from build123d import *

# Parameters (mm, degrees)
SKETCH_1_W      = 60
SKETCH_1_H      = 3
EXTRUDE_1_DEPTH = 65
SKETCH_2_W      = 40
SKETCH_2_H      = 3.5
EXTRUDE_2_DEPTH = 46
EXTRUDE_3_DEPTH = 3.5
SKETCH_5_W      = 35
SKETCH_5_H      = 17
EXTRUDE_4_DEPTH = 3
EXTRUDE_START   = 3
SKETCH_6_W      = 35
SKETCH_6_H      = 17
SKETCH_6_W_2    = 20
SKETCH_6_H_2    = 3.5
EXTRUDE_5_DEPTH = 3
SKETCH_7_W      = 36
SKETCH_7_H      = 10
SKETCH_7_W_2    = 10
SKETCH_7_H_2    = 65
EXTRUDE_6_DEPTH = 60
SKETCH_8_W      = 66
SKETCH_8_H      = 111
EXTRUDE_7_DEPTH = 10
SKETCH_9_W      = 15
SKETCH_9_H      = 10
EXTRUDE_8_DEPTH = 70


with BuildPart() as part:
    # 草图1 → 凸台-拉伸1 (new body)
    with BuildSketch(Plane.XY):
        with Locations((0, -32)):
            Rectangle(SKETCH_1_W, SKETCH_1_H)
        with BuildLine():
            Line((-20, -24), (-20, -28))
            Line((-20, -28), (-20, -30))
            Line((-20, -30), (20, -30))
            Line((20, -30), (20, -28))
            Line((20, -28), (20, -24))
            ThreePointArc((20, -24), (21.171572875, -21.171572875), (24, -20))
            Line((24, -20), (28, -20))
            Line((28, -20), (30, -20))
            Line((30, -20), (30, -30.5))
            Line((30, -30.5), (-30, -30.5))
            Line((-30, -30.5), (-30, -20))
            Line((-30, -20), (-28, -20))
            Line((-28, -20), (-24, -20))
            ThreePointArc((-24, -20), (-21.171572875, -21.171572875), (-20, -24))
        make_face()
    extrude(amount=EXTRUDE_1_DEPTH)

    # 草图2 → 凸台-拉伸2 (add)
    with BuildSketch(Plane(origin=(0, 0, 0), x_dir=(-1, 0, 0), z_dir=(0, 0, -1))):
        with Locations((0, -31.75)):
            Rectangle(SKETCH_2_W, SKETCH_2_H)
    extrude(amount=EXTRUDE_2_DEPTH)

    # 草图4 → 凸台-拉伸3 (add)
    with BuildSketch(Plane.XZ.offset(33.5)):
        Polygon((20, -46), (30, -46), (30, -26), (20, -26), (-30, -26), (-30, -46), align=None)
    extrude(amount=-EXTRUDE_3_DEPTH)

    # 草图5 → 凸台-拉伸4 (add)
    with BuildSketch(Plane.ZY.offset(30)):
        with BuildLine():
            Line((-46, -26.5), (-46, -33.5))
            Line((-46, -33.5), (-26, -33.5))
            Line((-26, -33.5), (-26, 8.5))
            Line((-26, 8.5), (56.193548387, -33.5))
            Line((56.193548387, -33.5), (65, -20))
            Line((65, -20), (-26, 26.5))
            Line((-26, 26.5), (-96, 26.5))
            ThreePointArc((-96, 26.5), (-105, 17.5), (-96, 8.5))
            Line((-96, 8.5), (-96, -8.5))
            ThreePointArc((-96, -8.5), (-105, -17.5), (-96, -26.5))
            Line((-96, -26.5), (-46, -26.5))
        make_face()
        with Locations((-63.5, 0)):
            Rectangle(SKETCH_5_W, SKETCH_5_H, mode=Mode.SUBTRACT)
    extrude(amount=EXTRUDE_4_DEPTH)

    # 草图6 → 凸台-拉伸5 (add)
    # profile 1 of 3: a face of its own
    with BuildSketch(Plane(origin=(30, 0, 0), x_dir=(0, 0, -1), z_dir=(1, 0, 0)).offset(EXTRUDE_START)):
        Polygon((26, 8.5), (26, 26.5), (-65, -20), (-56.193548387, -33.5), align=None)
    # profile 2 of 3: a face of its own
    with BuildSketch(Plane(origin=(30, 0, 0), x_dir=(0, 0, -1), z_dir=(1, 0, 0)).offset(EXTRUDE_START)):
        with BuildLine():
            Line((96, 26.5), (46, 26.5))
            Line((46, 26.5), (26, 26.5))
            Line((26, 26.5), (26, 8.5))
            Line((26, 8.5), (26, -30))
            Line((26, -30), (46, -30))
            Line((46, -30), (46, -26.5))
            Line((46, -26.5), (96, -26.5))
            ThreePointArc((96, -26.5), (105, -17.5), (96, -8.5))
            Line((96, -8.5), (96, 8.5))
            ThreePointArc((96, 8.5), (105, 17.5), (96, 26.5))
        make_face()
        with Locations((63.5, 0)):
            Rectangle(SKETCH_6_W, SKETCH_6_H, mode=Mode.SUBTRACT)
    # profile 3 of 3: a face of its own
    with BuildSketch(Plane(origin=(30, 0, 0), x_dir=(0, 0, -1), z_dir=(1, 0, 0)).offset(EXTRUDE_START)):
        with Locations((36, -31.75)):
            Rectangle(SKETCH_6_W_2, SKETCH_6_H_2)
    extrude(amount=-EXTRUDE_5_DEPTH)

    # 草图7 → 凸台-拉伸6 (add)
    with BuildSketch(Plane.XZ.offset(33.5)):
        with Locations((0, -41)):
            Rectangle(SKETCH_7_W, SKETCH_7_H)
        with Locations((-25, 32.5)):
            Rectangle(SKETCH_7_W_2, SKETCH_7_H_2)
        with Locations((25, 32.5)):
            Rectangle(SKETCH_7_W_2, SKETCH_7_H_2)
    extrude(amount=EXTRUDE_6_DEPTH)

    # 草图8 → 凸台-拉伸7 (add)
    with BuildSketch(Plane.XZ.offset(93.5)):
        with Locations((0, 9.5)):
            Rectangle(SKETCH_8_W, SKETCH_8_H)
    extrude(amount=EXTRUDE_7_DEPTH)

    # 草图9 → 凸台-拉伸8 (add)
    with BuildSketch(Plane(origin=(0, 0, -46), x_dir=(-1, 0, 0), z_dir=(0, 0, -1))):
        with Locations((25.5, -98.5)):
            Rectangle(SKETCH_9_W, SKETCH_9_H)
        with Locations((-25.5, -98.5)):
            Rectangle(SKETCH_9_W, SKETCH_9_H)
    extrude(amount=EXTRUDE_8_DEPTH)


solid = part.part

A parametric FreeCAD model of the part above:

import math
import FreeCAD as App
import Part
import Sketcher
from FreeCAD import Vector


def add_polygon(sketch, points):
    """Adds a closed chain of lines whose ends are joined by coincident constraints."""
    first, n = sketch.GeometryCount, len(points)
    for a, b in zip(points, points[1:] + points[:1]):
        sketch.addGeometry(Part.LineSegment(App.Vector(*a, 0), App.Vector(*b, 0)), False)
    for i in range(n):
        sketch.addConstraint(Sketcher.Constraint("Coincident", first + i, 2, first + (i + 1) % n, 1))

doc = App.newDocument("Part")
body = doc.addObject("PartDesign::Body", "Body")

# Sketch on XY plane
sketch1 = body.newObject("Sketcher::SketchObject", "Sketch")
sketch1.AttachmentSupport = (doc.getObject("XY_Plane"), [""])
sketch1.MapMode = "FlatFace"
sketch1.addGeometry([
    Part.LineSegment(Vector(-30, -33.5, 0), Vector(30, -33.5, 0)),  # 0
    Part.LineSegment(Vector(30, -33.5, 0), Vector(30, -20, 0)),  # 1
    Part.LineSegment(Vector(30, -20, 0), Vector(24, -20, 0)),  # 2
    Part.ArcOfCircle(Part.Circle(Vector(24, -24, 0), Vector(0, 0, 1), 4), math.radians(90), math.radians(180)),  # 3
    Part.LineSegment(Vector(20, -24, 0), Vector(20, -30, 0)),  # 4
    Part.LineSegment(Vector(20, -30, 0), Vector(-20, -30, 0)),  # 5
    Part.LineSegment(Vector(-20, -30, 0), Vector(-20, -24, 0)),  # 6
    Part.ArcOfCircle(Part.Circle(Vector(-24, -24, 0), Vector(0, 0, 1), 4), math.radians(0), math.radians(90)),  # 7
    Part.LineSegment(Vector(-24, -20, 0), Vector(-30, -20, 0)),  # 8
    Part.LineSegment(Vector(-30, -20, 0), Vector(-30, -33.5, 0)),  # 9
], False)
sketch1.addConstraint([
    Sketcher.Constraint("Coincident", 0, 2, 1, 1),
    Sketcher.Constraint("Coincident", 1, 2, 2, 1),
    Sketcher.Constraint("Tangent", 2, 2, 3, 1),
    Sketcher.Constraint("Tangent", 3, 2, 4, 1),
    Sketcher.Constraint("Coincident", 4, 2, 5, 1),
    Sketcher.Constraint("Coincident", 5, 2, 6, 1),
    Sketcher.Constraint("Tangent", 6, 2, 7, 1),
    Sketcher.Constraint("Tangent", 7, 2, 8, 1),
    Sketcher.Constraint("Coincident", 8, 2, 9, 1),
    Sketcher.Constraint("Coincident", 9, 2, 0, 1),
    Sketcher.Constraint("Horizontal", 0),
    Sketcher.Constraint("Vertical", 1),
    Sketcher.Constraint("Horizontal", 2),
    Sketcher.Constraint("Vertical", 4),
    Sketcher.Constraint("Horizontal", 5),
    Sketcher.Constraint("Vertical", 6),
    Sketcher.Constraint("Horizontal", 8),
    Sketcher.Constraint("Vertical", 9),
    Sketcher.Constraint("Equal", 3, 7),
    Sketcher.Constraint("Symmetric", 3, 3, 7, 3, -2),
    Sketcher.Constraint("Equal", 2, 8),
    Sketcher.Constraint("Equal", 8, 4),
    Sketcher.Constraint("Radius", 3, 4.0),
    Sketcher.Constraint("DistanceX", 0, 1, 0, 2, 60.0),
    Sketcher.Constraint("DistanceX", 2, 2, 2, 1, 6.0),
    Sketcher.Constraint("DistanceY", 1, 1, 1, 2, 13.5),
    Sketcher.Constraint("DistanceY", 3, 3, -1, 1, 24.0),
])
pad1 = body.newObject("PartDesign::Pad", "Pad")
pad1.Profile = sketch1
pad1.Length = 65

# Sketch on XY plane
sketch2 = body.newObject("Sketcher::SketchObject", "Sketch001")
sketch2.AttachmentSupport = (doc.getObject("XY_Plane"), [""])
sketch2.MapMode = "FlatFace"
add_polygon(sketch2, [(20, -30), (20, -33.5), (-20, -33.5), (-20, -30)])  # lines 0-3
sketch2.addConstraint([
    Sketcher.Constraint("Vertical", 0),
    Sketcher.Constraint("Horizontal", 1),
    Sketcher.Constraint("Vertical", 2),
    Sketcher.Constraint("Horizontal", 3),
    Sketcher.Constraint("DistanceX", 1, 2, 1, 1, 40.0),
    Sketcher.Constraint("DistanceY", 0, 2, 0, 1, 3.5),
    Sketcher.Constraint("DistanceX", -1, 1, 0, 2, 20.0),
    Sketcher.Constraint("DistanceY", 2, 2, -1, 1, 30.0),
])
pad2 = body.newObject("PartDesign::Pad", "Pad001")
pad2.Profile = sketch2
pad2.Length = 46
pad2.Reversed = True

# Sketch on XZ plane
sketch3 = body.newObject("Sketcher::SketchObject", "Sketch002")
sketch3.AttachmentSupport = (doc.getObject("XZ_Plane"), [""])
sketch3.MapMode = "FlatFace"
sketch3.AttachmentOffset = App.Placement(Vector(0, 0, 33.5), App.Rotation())
add_polygon(sketch3, [(30, -46), (30, -26), (-30, -26), (-30, -46)])  # lines 0-3
sketch3.addConstraint([
    Sketcher.Constraint("Vertical", 0),
    Sketcher.Constraint("Horizontal", 1),
    Sketcher.Constraint("Vertical", 2),
    Sketcher.Constraint("Horizontal", 3),
    Sketcher.Constraint("DistanceX", 1, 2, 1, 1, 60.0),
    Sketcher.Constraint("DistanceY", 0, 1, 0, 2, 20.0),
    Sketcher.Constraint("DistanceX", -1, 1, 0, 2, 30.0),
    Sketcher.Constraint("DistanceY", 0, 2, -1, 1, 26.0),
])
pad3 = body.newObject("PartDesign::Pad", "Pad002")
pad3.Profile = sketch3
pad3.Length = 3.5
pad3.Reversed = True

# Sketch on YZ plane
sketch4 = body.newObject("Sketcher::SketchObject", "Sketch003")
sketch4.AttachmentSupport = (doc.getObject("YZ_Plane"), [""])
sketch4.MapMode = "FlatFace"
sketch4.AttachmentOffset = App.Placement(Vector(0, 0, -30), App.Rotation())
sketch4.addGeometry(Part.LineSegment(Vector(-26, -46, 0), Vector(-34, -46, 0)), False)  # 0
sketch4.addGeometry(Part.LineSegment(Vector(-34, -46, 0), Vector(-34, -26, 0)), False)  # 1
sketch4.addGeometry(Part.LineSegment(Vector(-34, -26, 0), Vector(8, -26, 0)), False)  # 2
sketch4.addGeometry(Part.LineSegment(Vector(8, -26, 0), Vector(-34, 56, 0)), False)  # 3
sketch4.addGeometry(Part.LineSegment(Vector(-34, 56, 0), Vector(-20, 65, 0)), False)  # 4
sketch4.addGeometry(Part.LineSegment(Vector(-20, 65, 0), Vector(26, -26, 0)), False)  # 5
sketch4.addGeometry(Part.LineSegment(Vector(26, -26, 0), Vector(26, -96, 0)), False)  # 6
sketch4.addGeometry(Part.ArcOfCircle(Part.Circle(Vector(18, -96, 0), Vector(0, 0, 1), 9), math.radians(180), math.radians(360)), False)  # 7
sketch4.addGeometry(Part.LineSegment(Vector(8, -96, 0), Vector(-8, -96, 0)), False)  # 8
sketch4.addGeometry(Part.ArcOfCircle(Part.Circle(Vector(-18, -96, 0), Vector(0, 0, 1), 9), math.radians(180), math.radians(360)), False)  # 9
sketch4.addGeometry(Part.LineSegment(Vector(-26, -96, 0), Vector(-26, -46, 0)), False)  # 10
add_polygon(sketch4, [(-8, -46), (-8, -81), (8, -81), (8, -46)])  # lines 11-14
sketch4.addConstraint([
    Sketcher.Constraint("Coincident", 0, 2, 1, 1),
    Sketcher.Constraint("Coincident", 1, 2, 2, 1),
    Sketcher.Constraint("Coincident", 2, 2, 3, 1),
    Sketcher.Constraint("Coincident", 3, 2, 4, 1),
    Sketcher.Constraint("Coincident", 4, 2, 5, 1),
    Sketcher.Constraint("Coincident", 5, 2, 6, 1),
    Sketcher.Constraint("Tangent", 6, 2, 7, 2),
    Sketcher.Constraint("Coincident", 7, 1, 8, 1),
    Sketcher.Constraint("Coincident", 8, 2, 9, 2),
    Sketcher.Constraint("Tangent", 9, 1, 10, 1),
    Sketcher.Constraint("Coincident", 10, 2, 0, 1),
    Sketcher.Constraint("Horizontal", 0),
    Sketcher.Constraint("Vertical", 1),
    Sketcher.Constraint("Horizontal", 2),
    Sketcher.Constraint("Vertical", 6),
    Sketcher.Constraint("Horizontal", 8),
    Sketcher.Constraint("Vertical", 10),
    Sketcher.Constraint("Vertical", 11),
    Sketcher.Constraint("Horizontal", 12),
    Sketcher.Constraint("Vertical", 13),
    Sketcher.Constraint("Horizontal", 14),
    Sketcher.Constraint("Equal", 7, 9),
    Sketcher.Constraint("Symmetric", 7, 3, 9, 3, -2),
    Sketcher.Constraint("Parallel", 3, 5),
    Sketcher.Constraint("Horizontal", 2, 2, 5, 2),
    Sketcher.Constraint("Horizontal", 6, 2, 7, 1),
    Sketcher.Constraint("Horizontal", 10, 2, 13, 2),
    Sketcher.Constraint("Vertical", 1, 2, 3, 2),
    Sketcher.Constraint("Vertical", 2, 2, 7, 1),
    Sketcher.Constraint("Vertical", 8, 2, 11, 2),
    Sketcher.Constraint("Vertical", 7, 1, 12, 2),
    Sketcher.Constraint("Radius", 7, 9.0),
    Sketcher.Constraint("DistanceX", 0, 2, 0, 1, 7.0),
    Sketcher.Constraint("DistanceX", 2, 1, 2, 2, 42.0),
    Sketcher.Constraint("DistanceY", 1, 1, 1, 2, 20.0),
    Sketcher.Constraint("DistanceY", 6, 2, 6, 1, 70.0),
    Sketcher.Constraint("DistanceY", 11, 2, 11, 1, 35.0),
    Sketcher.Constraint("DistanceY", 7, 3, -1, 1, 96.0),
    Sketcher.Constraint("DistanceX", 4, 2, -1, 1, 20.0),
    Sketcher.Constraint("DistanceY", -1, 1, 4, 2, 65.0),
])
pad4 = body.newObject("PartDesign::Pad", "Pad003")
pad4.Profile = sketch4
pad4.Length = 3
pad4.Reversed = True

# Sketch on YZ plane
sketch5 = body.newObject("Sketcher::SketchObject", "Sketch004")
sketch5.AttachmentSupport = (doc.getObject("YZ_Plane"), [""])
sketch5.MapMode = "FlatFace"
sketch5.AttachmentOffset = App.Placement(Vector(0, 0, 33), App.Rotation())
sketch5.addGeometry(Part.LineSegment(Vector(26, -26, 0), Vector(-20, 65, 0)), False)  # 0
sketch5.addGeometry(Part.LineSegment(Vector(-20, 65, 0), Vector(-34, 56, 0)), False)  # 1
sketch5.addGeometry(Part.LineSegment(Vector(-34, 56, 0), Vector(8, -26, 0)), False)  # 2
sketch5.addGeometry(Part.LineSegment(Vector(8, -26, 0), Vector(-34, -26, 0)), False)  # 3
sketch5.addGeometry(Part.LineSegment(Vector(-34, -26, 0), Vector(-34, -46, 0)), False)  # 4
sketch5.addGeometry(Part.LineSegment(Vector(-34, -46, 0), Vector(-26, -46, 0)), False)  # 5
sketch5.addGeometry(Part.LineSegment(Vector(-26, -46, 0), Vector(-26, -96, 0)), False)  # 6
sketch5.addGeometry(Part.ArcOfCircle(Part.Circle(Vector(-18, -96, 0), Vector(0, 0, 1), 9), math.radians(180), math.radians(360)), False)  # 7
sketch5.addGeometry(Part.LineSegment(Vector(-8, -96, 0), Vector(8, -96, 0)), False)  # 8
sketch5.addGeometry(Part.ArcOfCircle(Part.Circle(Vector(18, -96, 0), Vector(0, 0, 1), 9), math.radians(180), math.radians(360)), False)  # 9
sketch5.addGeometry(Part.LineSegment(Vector(26, -96, 0), Vector(26, -26, 0)), False)  # 10
add_polygon(sketch5, [(-8, -46), (8, -46), (8, -81), (-8, -81)])  # lines 11-14
sketch5.addConstraint([
    Sketcher.Constraint("Coincident", 0, 2, 1, 1),
    Sketcher.Constraint("Coincident", 1, 2, 2, 1),
    Sketcher.Constraint("Coincident", 2, 2, 3, 1),
    Sketcher.Constraint("Coincident", 3, 2, 4, 1),
    Sketcher.Constraint("Coincident", 4, 2, 5, 1),
    Sketcher.Constraint("Coincident", 5, 2, 6, 1),
    Sketcher.Constraint("Tangent", 6, 2, 7, 1),
    Sketcher.Constraint("Coincident", 7, 2, 8, 1),
    Sketcher.Constraint("Coincident", 8, 2, 9, 1),
    Sketcher.Constraint("Tangent", 9, 2, 10, 1),
    Sketcher.Constraint("Coincident", 10, 2, 0, 1),
    Sketcher.Constraint("Horizontal", 3),
    Sketcher.Constraint("Vertical", 4),
    Sketcher.Constraint("Horizontal", 5),
    Sketcher.Constraint("Vertical", 6),
    Sketcher.Constraint("Horizontal", 8),
    Sketcher.Constraint("Vertical", 10),
    Sketcher.Constraint("Horizontal", 11),
    Sketcher.Constraint("Vertical", 12),
    Sketcher.Constraint("Horizontal", 13),
    Sketcher.Constraint("Vertical", 14),
    Sketcher.Constraint("Equal", 7, 9),
    Sketcher.Constraint("Symmetric", 7, 3, 9, 3, -2),
    Sketcher.Constraint("Parallel", 0, 2),
    Sketcher.Constraint("Horizontal", 6, 2, 7, 2),
    Sketcher.Constraint("Horizontal", 3, 2, 10, 2),
    Sketcher.Constraint("Horizontal", 5, 2, 11, 2),
    Sketcher.Constraint("Vertical", 1, 2, 3, 2),
    Sketcher.Constraint("Vertical", 2, 2, 8, 2),
    Sketcher.Constraint("Vertical", 8, 2, 11, 2),
    Sketcher.Constraint("Vertical", 7, 2, 13, 2),
    Sketcher.Constraint("Radius", 7, 9.0),
    Sketcher.Constraint("DistanceX", 3, 2, 3, 1, 42.0),
    Sketcher.Constraint("DistanceX", 5, 1, 5, 2, 7.0),
    Sketcher.Constraint("DistanceY", 4, 2, 4, 1, 20.0),
    Sketcher.Constraint("DistanceY", 6, 2, 6, 1, 50.0),
    Sketcher.Constraint("DistanceY", 12, 2, 12, 1, 35.0),
    Sketcher.Constraint("DistanceY", 7, 3, -1, 1, 96.0),
    Sketcher.Constraint("DistanceX", 0, 2, -1, 1, 20.0),
    Sketcher.Constraint("DistanceY", -1, 1, 0, 2, 65.0),
])
pad5 = body.newObject("PartDesign::Pad", "Pad004")
pad5.Profile = sketch5
pad5.Length = 3
pad5.Reversed = True

# Sketch on XZ plane
sketch6 = body.newObject("Sketcher::SketchObject", "Sketch005")
sketch6.AttachmentSupport = (doc.getObject("XZ_Plane"), [""])
sketch6.MapMode = "FlatFace"
sketch6.AttachmentOffset = App.Placement(Vector(0, 0, 33.5), App.Rotation())
add_polygon(sketch6, [(-18, -36), (-18, -46), (18, -46), (18, -36)])  # lines 0-3
add_polygon(sketch6, [(-30, 65), (-30, 0), (-20, 0), (-20, 65)])  # lines 4-7
add_polygon(sketch6, [(20, 65), (20, 0), (30, 0), (30, 65)])  # lines 8-11
sketch6.addConstraint([
    Sketcher.Constraint("Vertical", 0),
    Sketcher.Constraint("Horizontal", 1),
    Sketcher.Constraint("Vertical", 2),
    Sketcher.Constraint("Horizontal", 3),
    Sketcher.Constraint("Vertical", 4),
    Sketcher.Constraint("Horizontal", 5),
    Sketcher.Constraint("Vertical", 6),
    Sketcher.Constraint("Horizontal", 7),
    Sketcher.Constraint("Vertical", 8),
    Sketcher.Constraint("Horizontal", 9),
    Sketcher.Constraint("Vertical", 10),
    Sketcher.Constraint("Horizontal", 11),
    Sketcher.Constraint("Symmetric", 5, 2, 8, 2, -1, 1),
    Sketcher.Constraint("Symmetric", 4, 2, 9, 2, -2),
    Sketcher.Constraint("Horizontal", 7, 2, 10, 2),
    Sketcher.Constraint("Equal", 11, 0),
    Sketcher.Constraint("DistanceX", 1, 1, 1, 2, 36.0),
    Sketcher.Constraint("DistanceX", 5, 1, 5, 2, 10.0),
    Sketcher.Constraint("DistanceY", 4, 2, 4, 1, 65.0),
    Sketcher.Constraint("DistanceX", 0, 2, -1, 1, 18.0),
    Sketcher.Constraint("DistanceY", 0, 2, -1, 1, 46.0),
    Sketcher.Constraint("DistanceX", 4, 2, -1, 1, 30.0),
])
pad6 = body.newObject("PartDesign::Pad", "Pad005")
pad6.Profile = sketch6
pad6.Length = 60

# Sketch on XZ plane
sketch7 = body.newObject("Sketcher::SketchObject", "Sketch006")
sketch7.AttachmentSupport = (doc.getObject("XZ_Plane"), [""])
sketch7.MapMode = "FlatFace"
sketch7.AttachmentOffset = App.Placement(Vector(0, 0, 93.5), App.Rotation())
add_polygon(sketch7, [(-33, 65), (-33, -46), (33, -46), (33, 65)])  # lines 0-3
sketch7.addConstraint([
    Sketcher.Constraint("Vertical", 0),
    Sketcher.Constraint("Horizontal", 1),
    Sketcher.Constraint("Vertical", 2),
    Sketcher.Constraint("Horizontal", 3),
    Sketcher.Constraint("DistanceX", 1, 1, 1, 2, 66.0),
    Sketcher.Constraint("DistanceY", 0, 2, 0, 1, 111.0),
    Sketcher.Constraint("DistanceX", 0, 2, -1, 1, 33.0),
    Sketcher.Constraint("DistanceY", 0, 2, -1, 1, 46.0),
])
pad7 = body.newObject("PartDesign::Pad", "Pad006")
pad7.Profile = sketch7
pad7.Length = 10

# Sketch on XY plane
sketch8 = body.newObject("Sketcher::SketchObject", "Sketch007")
sketch8.AttachmentSupport = (doc.getObject("XY_Plane"), [""])
sketch8.MapMode = "FlatFace"
sketch8.AttachmentOffset = App.Placement(Vector(0, 0, -46), App.Rotation())
add_polygon(sketch8, [(-18, -94), (-18, -104), (-33, -104), (-33, -94)])  # lines 0-3
add_polygon(sketch8, [(33, -94), (33, -104), (18, -104), (18, -94)])  # lines 4-7
sketch8.addConstraint([
    Sketcher.Constraint("Vertical", 0),
    Sketcher.Constraint("Horizontal", 1),
    Sketcher.Constraint("Vertical", 2),
    Sketcher.Constraint("Horizontal", 3),
    Sketcher.Constraint("Vertical", 4),
    Sketcher.Constraint("Horizontal", 5),
    Sketcher.Constraint("Vertical", 6),
    Sketcher.Constraint("Horizontal", 7),
    Sketcher.Constraint("Symmetric", 1, 2, 4, 2, -2),
    Sketcher.Constraint("Symmetric", 3, 2, 6, 2, -2),
    Sketcher.Constraint("DistanceX", 1, 2, 1, 1, 15.0),
    Sketcher.Constraint("DistanceY", 0, 2, 0, 1, 10.0),
    Sketcher.Constraint("DistanceX", 0, 2, -1, 1, 18.0),
    Sketcher.Constraint("DistanceY", 0, 2, -1, 1, 103.5),
])
pad8 = body.newObject("PartDesign::Pad", "Pad007")
pad8.Profile = sketch8
pad8.Length = 70
pad8.Reversed = True

doc.recompute()
